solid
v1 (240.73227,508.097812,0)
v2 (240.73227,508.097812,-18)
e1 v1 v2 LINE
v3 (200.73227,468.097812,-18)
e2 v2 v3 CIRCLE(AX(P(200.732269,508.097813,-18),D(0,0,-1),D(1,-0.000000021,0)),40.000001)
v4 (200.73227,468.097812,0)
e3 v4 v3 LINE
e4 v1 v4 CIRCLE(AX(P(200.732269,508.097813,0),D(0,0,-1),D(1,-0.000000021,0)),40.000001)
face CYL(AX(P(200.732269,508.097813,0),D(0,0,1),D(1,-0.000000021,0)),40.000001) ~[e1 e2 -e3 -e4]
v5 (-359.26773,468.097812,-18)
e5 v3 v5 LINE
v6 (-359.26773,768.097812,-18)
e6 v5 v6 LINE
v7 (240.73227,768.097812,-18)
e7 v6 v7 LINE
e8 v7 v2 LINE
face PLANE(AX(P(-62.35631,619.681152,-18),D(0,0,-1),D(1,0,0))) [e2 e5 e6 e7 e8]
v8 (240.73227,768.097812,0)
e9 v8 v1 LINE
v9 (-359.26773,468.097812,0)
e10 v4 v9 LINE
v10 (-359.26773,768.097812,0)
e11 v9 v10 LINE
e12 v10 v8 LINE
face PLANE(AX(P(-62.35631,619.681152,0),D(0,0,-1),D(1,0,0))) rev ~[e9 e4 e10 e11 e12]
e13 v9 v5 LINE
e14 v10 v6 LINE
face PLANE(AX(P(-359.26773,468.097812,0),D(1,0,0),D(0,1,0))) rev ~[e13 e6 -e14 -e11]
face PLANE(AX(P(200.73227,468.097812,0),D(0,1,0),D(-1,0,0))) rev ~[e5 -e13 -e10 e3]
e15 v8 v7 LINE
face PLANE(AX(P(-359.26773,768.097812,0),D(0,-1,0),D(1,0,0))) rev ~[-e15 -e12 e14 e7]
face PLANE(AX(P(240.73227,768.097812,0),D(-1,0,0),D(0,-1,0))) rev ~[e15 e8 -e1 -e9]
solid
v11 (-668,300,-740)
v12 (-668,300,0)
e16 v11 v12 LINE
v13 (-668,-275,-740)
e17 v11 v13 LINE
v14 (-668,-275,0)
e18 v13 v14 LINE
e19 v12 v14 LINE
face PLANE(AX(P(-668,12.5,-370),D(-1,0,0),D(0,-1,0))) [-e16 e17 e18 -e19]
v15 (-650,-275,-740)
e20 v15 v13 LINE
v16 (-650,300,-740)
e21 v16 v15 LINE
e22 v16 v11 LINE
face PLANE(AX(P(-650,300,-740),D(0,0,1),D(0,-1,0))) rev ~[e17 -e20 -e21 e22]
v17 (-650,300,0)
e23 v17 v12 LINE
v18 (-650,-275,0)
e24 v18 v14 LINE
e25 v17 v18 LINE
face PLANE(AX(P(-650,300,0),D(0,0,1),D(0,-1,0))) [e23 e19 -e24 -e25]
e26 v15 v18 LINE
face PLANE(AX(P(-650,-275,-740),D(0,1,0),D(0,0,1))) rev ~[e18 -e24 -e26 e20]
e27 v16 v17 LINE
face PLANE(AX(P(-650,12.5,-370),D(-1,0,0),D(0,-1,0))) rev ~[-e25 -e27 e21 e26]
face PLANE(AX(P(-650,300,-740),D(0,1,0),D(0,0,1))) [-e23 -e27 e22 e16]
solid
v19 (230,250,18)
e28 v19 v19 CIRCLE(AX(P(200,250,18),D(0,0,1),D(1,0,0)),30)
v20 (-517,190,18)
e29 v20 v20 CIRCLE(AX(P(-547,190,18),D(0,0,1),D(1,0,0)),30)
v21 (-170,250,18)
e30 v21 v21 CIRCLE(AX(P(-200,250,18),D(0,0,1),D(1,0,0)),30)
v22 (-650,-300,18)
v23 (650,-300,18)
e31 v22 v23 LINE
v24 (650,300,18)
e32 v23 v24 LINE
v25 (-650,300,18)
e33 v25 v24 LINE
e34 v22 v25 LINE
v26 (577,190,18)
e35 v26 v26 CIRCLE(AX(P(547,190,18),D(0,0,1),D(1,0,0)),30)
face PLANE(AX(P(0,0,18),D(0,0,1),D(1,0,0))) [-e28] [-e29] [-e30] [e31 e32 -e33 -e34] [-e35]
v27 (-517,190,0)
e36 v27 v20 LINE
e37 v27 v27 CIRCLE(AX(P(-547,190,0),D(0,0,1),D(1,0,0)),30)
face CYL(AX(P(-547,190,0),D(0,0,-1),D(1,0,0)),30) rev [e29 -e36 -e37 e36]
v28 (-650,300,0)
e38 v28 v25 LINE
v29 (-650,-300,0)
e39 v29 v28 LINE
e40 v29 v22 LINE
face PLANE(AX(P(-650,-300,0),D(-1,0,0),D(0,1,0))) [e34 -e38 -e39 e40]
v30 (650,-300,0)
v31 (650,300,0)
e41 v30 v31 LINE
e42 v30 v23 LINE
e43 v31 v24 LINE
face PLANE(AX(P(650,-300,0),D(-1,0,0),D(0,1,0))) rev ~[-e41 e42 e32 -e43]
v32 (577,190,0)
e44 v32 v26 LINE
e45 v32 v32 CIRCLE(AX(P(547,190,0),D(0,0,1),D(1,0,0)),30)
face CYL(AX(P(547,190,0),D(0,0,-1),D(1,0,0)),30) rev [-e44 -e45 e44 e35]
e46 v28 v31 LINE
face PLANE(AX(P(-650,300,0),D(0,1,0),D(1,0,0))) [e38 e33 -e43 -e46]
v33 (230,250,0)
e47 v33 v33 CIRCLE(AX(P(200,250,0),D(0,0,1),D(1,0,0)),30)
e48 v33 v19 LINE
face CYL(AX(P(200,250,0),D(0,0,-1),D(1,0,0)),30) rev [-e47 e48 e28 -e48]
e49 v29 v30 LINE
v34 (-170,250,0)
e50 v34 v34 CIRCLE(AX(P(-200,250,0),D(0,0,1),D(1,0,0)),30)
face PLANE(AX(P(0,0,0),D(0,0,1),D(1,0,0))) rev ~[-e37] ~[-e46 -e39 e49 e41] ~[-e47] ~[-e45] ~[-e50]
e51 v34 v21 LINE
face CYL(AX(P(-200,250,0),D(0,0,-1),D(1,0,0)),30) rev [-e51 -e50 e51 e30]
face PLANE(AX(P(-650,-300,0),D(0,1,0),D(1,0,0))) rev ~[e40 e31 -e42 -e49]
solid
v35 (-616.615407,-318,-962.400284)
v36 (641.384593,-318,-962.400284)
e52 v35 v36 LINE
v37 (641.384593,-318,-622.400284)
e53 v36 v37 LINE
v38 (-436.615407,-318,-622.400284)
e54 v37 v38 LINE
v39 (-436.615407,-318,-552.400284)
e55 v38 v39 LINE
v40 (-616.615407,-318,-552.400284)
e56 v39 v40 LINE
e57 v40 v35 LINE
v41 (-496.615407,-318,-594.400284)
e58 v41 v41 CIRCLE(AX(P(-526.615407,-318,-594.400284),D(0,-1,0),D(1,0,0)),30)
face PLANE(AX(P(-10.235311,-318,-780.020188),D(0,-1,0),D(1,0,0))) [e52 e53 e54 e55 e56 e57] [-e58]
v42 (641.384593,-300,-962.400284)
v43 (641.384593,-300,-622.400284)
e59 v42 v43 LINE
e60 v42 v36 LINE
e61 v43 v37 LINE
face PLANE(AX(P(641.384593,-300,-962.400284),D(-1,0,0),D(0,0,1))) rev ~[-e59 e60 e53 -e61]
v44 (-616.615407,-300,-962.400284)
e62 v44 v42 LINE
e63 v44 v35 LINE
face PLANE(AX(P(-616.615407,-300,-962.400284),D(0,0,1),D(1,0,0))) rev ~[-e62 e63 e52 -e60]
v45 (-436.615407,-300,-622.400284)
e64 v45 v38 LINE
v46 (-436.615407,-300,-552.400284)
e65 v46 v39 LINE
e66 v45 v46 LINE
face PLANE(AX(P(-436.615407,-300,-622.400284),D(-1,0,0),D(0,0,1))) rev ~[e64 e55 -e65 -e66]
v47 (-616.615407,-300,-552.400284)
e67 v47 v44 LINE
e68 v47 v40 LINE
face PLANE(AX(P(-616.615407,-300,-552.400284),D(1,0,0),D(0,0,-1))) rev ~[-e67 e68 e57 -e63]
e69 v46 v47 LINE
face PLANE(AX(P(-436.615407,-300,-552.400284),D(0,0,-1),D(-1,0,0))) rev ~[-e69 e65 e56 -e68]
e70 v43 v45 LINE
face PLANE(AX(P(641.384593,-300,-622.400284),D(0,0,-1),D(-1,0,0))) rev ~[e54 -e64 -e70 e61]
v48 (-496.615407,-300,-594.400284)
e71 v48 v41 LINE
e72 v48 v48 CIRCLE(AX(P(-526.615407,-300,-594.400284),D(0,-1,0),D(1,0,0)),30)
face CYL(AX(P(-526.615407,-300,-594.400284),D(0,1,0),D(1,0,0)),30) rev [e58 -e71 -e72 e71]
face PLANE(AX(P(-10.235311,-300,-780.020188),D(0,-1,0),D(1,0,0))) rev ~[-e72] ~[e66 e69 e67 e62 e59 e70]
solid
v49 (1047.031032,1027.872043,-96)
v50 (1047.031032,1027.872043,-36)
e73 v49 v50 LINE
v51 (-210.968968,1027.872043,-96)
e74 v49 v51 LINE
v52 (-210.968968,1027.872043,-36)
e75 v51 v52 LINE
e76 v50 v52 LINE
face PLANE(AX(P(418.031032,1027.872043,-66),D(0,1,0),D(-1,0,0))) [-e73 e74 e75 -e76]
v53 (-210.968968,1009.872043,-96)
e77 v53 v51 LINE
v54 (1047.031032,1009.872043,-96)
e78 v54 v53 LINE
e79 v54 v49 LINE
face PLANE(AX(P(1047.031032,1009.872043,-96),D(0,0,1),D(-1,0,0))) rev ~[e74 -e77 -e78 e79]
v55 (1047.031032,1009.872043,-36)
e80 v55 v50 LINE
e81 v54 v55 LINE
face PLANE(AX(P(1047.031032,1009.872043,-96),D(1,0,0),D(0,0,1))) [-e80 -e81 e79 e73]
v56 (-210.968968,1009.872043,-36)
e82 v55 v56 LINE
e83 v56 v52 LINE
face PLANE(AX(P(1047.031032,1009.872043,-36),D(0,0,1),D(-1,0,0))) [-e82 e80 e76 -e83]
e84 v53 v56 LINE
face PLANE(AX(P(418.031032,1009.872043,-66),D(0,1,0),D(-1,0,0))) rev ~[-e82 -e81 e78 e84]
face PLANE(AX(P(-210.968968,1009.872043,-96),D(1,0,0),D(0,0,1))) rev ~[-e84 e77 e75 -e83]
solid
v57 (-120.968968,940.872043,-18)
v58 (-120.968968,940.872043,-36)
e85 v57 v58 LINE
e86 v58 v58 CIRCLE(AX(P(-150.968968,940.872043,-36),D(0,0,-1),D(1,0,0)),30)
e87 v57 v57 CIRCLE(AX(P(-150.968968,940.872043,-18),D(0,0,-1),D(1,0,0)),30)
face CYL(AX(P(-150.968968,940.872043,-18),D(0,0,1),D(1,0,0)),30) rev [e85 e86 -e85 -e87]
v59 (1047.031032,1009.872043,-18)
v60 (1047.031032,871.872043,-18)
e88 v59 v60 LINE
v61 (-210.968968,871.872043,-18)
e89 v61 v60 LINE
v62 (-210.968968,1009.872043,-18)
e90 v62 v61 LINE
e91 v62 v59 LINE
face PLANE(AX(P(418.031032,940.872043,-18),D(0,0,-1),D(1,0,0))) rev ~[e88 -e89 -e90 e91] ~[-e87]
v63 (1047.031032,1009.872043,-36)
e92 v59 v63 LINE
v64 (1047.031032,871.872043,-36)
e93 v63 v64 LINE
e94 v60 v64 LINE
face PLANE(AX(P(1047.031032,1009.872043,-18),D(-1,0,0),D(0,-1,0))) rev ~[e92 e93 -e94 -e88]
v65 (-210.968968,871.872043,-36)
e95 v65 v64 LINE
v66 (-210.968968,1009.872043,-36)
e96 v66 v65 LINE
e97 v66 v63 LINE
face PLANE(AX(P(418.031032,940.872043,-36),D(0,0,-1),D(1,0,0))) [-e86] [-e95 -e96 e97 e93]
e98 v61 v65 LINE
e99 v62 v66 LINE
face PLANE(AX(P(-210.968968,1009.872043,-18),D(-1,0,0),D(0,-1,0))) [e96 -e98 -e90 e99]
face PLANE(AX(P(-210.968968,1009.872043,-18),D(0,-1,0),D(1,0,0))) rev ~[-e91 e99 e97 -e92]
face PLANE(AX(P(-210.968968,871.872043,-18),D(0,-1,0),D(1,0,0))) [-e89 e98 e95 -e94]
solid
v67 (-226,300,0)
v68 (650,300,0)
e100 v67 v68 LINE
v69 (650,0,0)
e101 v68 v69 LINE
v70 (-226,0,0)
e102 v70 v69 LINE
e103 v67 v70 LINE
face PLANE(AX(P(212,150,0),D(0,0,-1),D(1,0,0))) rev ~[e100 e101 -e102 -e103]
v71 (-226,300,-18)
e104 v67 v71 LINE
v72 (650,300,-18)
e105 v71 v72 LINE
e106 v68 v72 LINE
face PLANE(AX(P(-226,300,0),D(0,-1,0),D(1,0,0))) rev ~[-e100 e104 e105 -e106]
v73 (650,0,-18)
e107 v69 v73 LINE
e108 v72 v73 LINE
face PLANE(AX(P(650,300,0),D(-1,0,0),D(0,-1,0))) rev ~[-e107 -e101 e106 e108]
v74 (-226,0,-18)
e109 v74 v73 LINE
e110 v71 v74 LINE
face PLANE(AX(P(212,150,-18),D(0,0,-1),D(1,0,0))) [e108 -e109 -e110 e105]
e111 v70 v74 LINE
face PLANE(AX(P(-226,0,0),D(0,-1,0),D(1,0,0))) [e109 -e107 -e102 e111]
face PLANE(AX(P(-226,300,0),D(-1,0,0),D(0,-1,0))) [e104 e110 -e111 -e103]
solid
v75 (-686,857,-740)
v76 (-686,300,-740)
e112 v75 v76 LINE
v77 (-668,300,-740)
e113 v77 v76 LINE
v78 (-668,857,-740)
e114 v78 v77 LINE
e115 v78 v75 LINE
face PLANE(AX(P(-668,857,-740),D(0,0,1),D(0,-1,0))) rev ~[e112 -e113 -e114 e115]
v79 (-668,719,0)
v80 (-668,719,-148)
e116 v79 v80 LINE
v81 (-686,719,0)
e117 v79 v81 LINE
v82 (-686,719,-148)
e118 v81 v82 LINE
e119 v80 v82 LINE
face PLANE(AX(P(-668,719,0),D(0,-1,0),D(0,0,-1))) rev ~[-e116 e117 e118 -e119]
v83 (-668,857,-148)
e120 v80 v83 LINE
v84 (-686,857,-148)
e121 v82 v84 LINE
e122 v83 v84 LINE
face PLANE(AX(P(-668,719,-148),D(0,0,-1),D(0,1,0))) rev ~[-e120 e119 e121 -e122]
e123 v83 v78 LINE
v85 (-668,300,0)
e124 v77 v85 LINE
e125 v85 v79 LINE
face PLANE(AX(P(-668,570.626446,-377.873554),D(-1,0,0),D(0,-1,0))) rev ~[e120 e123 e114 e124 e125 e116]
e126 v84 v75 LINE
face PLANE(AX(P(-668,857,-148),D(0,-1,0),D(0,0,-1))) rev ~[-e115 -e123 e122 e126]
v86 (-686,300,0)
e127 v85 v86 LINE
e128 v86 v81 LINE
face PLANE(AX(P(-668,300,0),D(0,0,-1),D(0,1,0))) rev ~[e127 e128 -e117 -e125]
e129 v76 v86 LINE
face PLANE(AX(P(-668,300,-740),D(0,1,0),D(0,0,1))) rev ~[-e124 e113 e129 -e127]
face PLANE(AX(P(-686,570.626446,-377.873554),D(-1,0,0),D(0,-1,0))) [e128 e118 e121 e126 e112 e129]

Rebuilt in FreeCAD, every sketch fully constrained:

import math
import FreeCAD as App
import Part
import Sketcher
Q = App.Units.Quantity


def add_polygon(sketch, points):
    """Adds a closed chain of lines whose ends are joined by coincident constraints."""
    first, n = sketch.GeometryCount, len(points)
    for a, b in zip(points, points[1:] + points[:1]):
        sketch.addGeometry(Part.LineSegment(App.Vector(*a, 0), App.Vector(*b, 0)), False)
    for i in range(n):
        sketch.addConstraint(Sketcher.Constraint("Coincident", first + i, 2, first + (i + 1) % n, 1))

doc = App.newDocument("Part")
body = doc.addObject("PartDesign::Body", "Body")

# Sketch on XY plane
sketch1 = body.newObject("Sketcher::SketchObject", "Sketch")
sketch1.AttachmentSupport = (doc.getObject("XY_Plane"), [""])
sketch1.MapMode = "FlatFace"
add_polygon(sketch1, [(-650, 300), (-650, -300), (650, -300), (650, 300)])  # lines 0-3
sketch1.addGeometry(Part.Circle(App.Vector(-547, 190, 0), App.Vector(0, 0, 1), 30), False)  # 4
sketch1.addGeometry(Part.Circle(App.Vector(547, 190, 0), App.Vector(0, 0, 1), 30), False)  # 5
sketch1.addGeometry(Part.Circle(App.Vector(-200, 250, 0), App.Vector(0, 0, 1), 30), False)  # 6
sketch1.addGeometry(Part.Circle(App.Vector(200, 250, 0), App.Vector(0, 0, 1), 30), False)  # 7
sketch1.addConstraint([
    Sketcher.Constraint("Vertical", 0),
    Sketcher.Constraint("Horizontal", 1),
    Sketcher.Constraint("Vertical", 2),
    Sketcher.Constraint("Horizontal", 3),
    Sketcher.Constraint("Equal", 4, 5),
    Sketcher.Constraint("Equal", 5, 6),
    Sketcher.Constraint("Equal", 6, 7),
    Sketcher.Constraint("Symmetric", 0, 2, 2, 2, -1, 1),
    Sketcher.Constraint("Symmetric", 4, 3, 5, 3, -2),
    Sketcher.Constraint("Symmetric", 6, 3, 7, 3, -2),
    Sketcher.Constraint("Diameter", 4, Q("60 mm")),
    Sketcher.Constraint("DistanceX", 1, 1, 1, 2, Q("1300 mm")),
    Sketcher.Constraint("DistanceY", 0, 2, 0, 1, Q("600 mm")),
    Sketcher.Constraint("DistanceX", 4, 3, -1, 1, Q("547 mm")),
    Sketcher.Constraint("DistanceY", -1, 1, 4, 3, Q("190 mm")),
    Sketcher.Constraint("DistanceX", 6, 3, -1, 1, Q("200 mm")),
    Sketcher.Constraint("DistanceY", -1, 1, 6, 3, Q("250 mm")),
])
pad1 = body.newObject("PartDesign::Pad", "Pad")
pad1.Profile = sketch1
pad1.Length = 18
body2 = doc.addObject("PartDesign::Body", "Body001")

# Sketch on YZ plane
sketch2 = body2.newObject("Sketcher::SketchObject", "Sketch001")
sketch2.AttachmentSupport = (doc.getObject("YZ_Plane001"), [""])
sketch2.MapMode = "FlatFace"
sketch2.AttachmentOffset = App.Placement(App.Vector(0, 0, -650), App.Rotation())
add_polygon(sketch2, [(300, 0), (300, -740), (-275, -740), (-275, 0)])  # lines 0-3
sketch2.addConstraint([
    Sketcher.Constraint("Vertical", 0),
    Sketcher.Constraint("Horizontal", 1),
    Sketcher.Constraint("Vertical", 2),
    Sketcher.Constraint("Horizontal", 3),
    Sketcher.Constraint("PointOnObject", 2, 2, -1),
    Sketcher.Constraint("DistanceX", 1, 2, 1, 1, Q("575 mm")),
    Sketcher.Constraint("DistanceY", 0, 2, 0, 1, Q("740 mm")),
    Sketcher.Constraint("DistanceX", -1, 1, 0, 2, Q("300 mm")),
])
pad2 = body2.newObject("PartDesign::Pad", "Pad001")
pad2.Profile = sketch2
pad2.Length = 18
pad2.Reversed = True
body3 = doc.addObject("PartDesign::Body", "Body002")

# Sketch on YZ plane
sketch3 = body3.newObject("Sketcher::SketchObject", "Sketch002")
sketch3.AttachmentSupport = (doc.getObject("YZ_Plane002"), [""])
sketch3.MapMode = "FlatFace"
sketch3.AttachmentOffset = App.Placement(App.Vector(0, 0, -668), App.Rotation())
add_polygon(sketch3, [(857, -740), (300, -740), (300, 0), (719, 0), (719, -148), (857, -148)])  # lines 0-5
sketch3.addConstraint([
    Sketcher.Constraint("Horizontal", 0),
    Sketcher.Constraint("Vertical", 1),
    Sketcher.Constraint("Horizontal", 2),
    Sketcher.Constraint("Vertical", 3),
    Sketcher.Constraint("Horizontal", 4),
    Sketcher.Constraint("Vertical", 5),
    Sketcher.Constraint("PointOnObject", 1, 2, -1),
    Sketcher.Constraint("DistanceX", 0, 2, 0, 1, Q("557 mm")),
    Sketcher.Constraint("DistanceX", 2, 1, 2, 2, Q("419 mm")),
    Sketcher.Constraint("DistanceY", 1, 1, 1, 2, Q("740 mm")),
    Sketcher.Constraint("DistanceY", 3, 2, 3, 1, Q("148 mm")),
    Sketcher.Constraint("DistanceX", -1, 1, 0, 2, Q("300 mm")),
])
pad3 = body3.newObject("PartDesign::Pad", "Pad002")
pad3.Profile = sketch3
pad3.Length = 18
pad3.Reversed = True
body4 = doc.addObject("PartDesign::Body", "Body003")

# Sketch on XY plane
sketch4 = body4.newObject("Sketcher::SketchObject", "Sketch003")
sketch4.AttachmentSupport = (doc.getObject("XY_Plane003"), [""])
sketch4.MapMode = "FlatFace"
sketch4.addGeometry([
    Part.LineSegment(App.Vector(201, 468, 0), App.Vector(-359, 468, 0)),  # 0
    Part.LineSegment(App.Vector(-359, 468, 0), App.Vector(-359, 768, 0)),  # 1
    Part.LineSegment(App.Vector(-359, 768, 0), App.Vector(241, 768, 0)),  # 2
    Part.LineSegment(App.Vector(241, 768, 0), App.Vector(241, 508, 0)),  # 3
    Part.ArcOfCircle(Part.Circle(App.Vector(201, 508, 0), App.Vector(0, 0, 1), 40), math.radians(-90), math.radians(0)),  # 4
], False)
sketch4.addConstraint([
    Sketcher.Constraint("Coincident", 0, 2, 1, 1),
    Sketcher.Constraint("Coincident", 1, 2, 2, 1),
    Sketcher.Constraint("Coincident", 2, 2, 3, 1),
    Sketcher.Constraint("Tangent", 3, 2, 4, 2),
    Sketcher.Constraint("Tangent", 4, 1, 0, 1),
    Sketcher.Constraint("Horizontal", 0),
    Sketcher.Constraint("Vertical", 1),
    Sketcher.Constraint("Horizontal", 2),
    Sketcher.Constraint("Vertical", 3),
    Sketcher.Constraint("Radius", 4, Q("40.000001 mm")),
    Sketcher.Constraint("DistanceX", 0, 2, 0, 1, Q("560 mm")),
    Sketcher.Constraint("DistanceY", 1, 1, 1, 2, Q("300 mm")),
    Sketcher.Constraint("DistanceX", -1, 1, 4, 3, Q("200.732269 mm")),
    Sketcher.Constraint("DistanceY", -1, 1, 0, 2, Q("468.097812 mm")),
])
pad4 = body4.newObject("PartDesign::Pad", "Pad003")
pad4.Profile = sketch4
pad4.Length = 18
pad4.Reversed = True
body5 = doc.addObject("PartDesign::Body", "Body004")

# Sketch on XZ plane
sketch5 = body5.newObject("Sketcher::SketchObject", "Sketch004")
sketch5.AttachmentSupport = (doc.getObject("XZ_Plane004"), [""])
sketch5.MapMode = "FlatFace"
sketch5.AttachmentOffset = App.Placement(App.Vector(0, 0, 300), App.Rotation())
add_polygon(sketch5, [(641, -622), (-437, -622), (-437, -552), (-617, -552), (-617, -962), (641, -962)])  # lines 0-5
sketch5.addGeometry(Part.Circle(App.Vector(-527, -594, 0), App.Vector(0, 0, 1), 30), False)  # 6
sketch5.addConstraint([
    Sketcher.Constraint("Horizontal", 0),
    Sketcher.Constraint("Vertical", 1),
    Sketcher.Constraint("Horizontal", 2),
    Sketcher.Constraint("Vertical", 3),
    Sketcher.Constraint("Horizontal", 4),
    Sketcher.Constraint("Vertical", 5),
    Sketcher.Constraint("Diameter", 6, Q("60 mm")),
    Sketcher.Constraint("DistanceX", 0, 2, 0, 1, Q("1078 mm")),
    Sketcher.Constraint("DistanceX", 2, 2, 2, 1, Q("180 mm")),
    Sketcher.Constraint("DistanceY", 1, 1, 1, 2, Q("70 mm")),
    Sketcher.Constraint("DistanceY", 3, 2, 3, 1, Q("410 mm")),
    Sketcher.Constraint("DistanceX", 6, 3, 0, 2, Q("90 mm")),
    Sketcher.Constraint("DistanceY", 0, 2, 6, 3, Q("28 mm")),
    Sketcher.Constraint("DistanceX", 6, 3, -1, 1, Q("526.615407 mm")),
    Sketcher.Constraint("DistanceY", 6, 3, -1, 1, Q("594.400284 mm")),
])
pad5 = body5.newObject("PartDesign::Pad", "Pad004")
pad5.Profile = sketch5
pad5.Length = 18
body6 = doc.addObject("PartDesign::Body", "Body005")

# Sketch on XY plane
sketch6 = body6.newObject("Sketcher::SketchObject", "Sketch005")
sketch6.AttachmentSupport = (doc.getObject("XY_Plane005"), [""])
sketch6.MapMode = "FlatFace"
add_polygon(sketch6, [(-226, 0), (-226, 300), (650, 300), (650, 0)])  # lines 0-3
sketch6.addConstraint([
    Sketcher.Constraint("Vertical", 0),
    Sketcher.Constraint("Horizontal", 1),
    Sketcher.Constraint("Vertical", 2),
    Sketcher.Constraint("Horizontal", 3),
    Sketcher.Constraint("PointOnObject", 2, 2, -1),
    Sketcher.Constraint("DistanceX", 1, 1, 1, 2, Q("876 mm")),
    Sketcher.Constraint("DistanceY", 0, 1, 0, 2, Q("300 mm")),
    Sketcher.Constraint("DistanceX", 0, 2, -1, 1, Q("226 mm")),
])
pad6 = body6.newObject("PartDesign::Pad", "Pad005")
pad6.Profile = sketch6
pad6.Length = 18
pad6.Reversed = True
body7 = doc.addObject("PartDesign::Body", "Body006")

# Sketch on XY plane
sketch7 = body7.newObject("Sketcher::SketchObject", "Sketch006")
sketch7.AttachmentSupport = (doc.getObject("XY_Plane006"), [""])
sketch7.MapMode = "FlatFace"
sketch7.AttachmentOffset = App.Placement(App.Vector(0, 0, -18), App.Rotation())
add_polygon(sketch7, [(-211, 872), (-211, 1010), (1047, 1010), (1047, 872)])  # lines 0-3
sketch7.addGeometry(Part.Circle(App.Vector(-151, 941, 0), App.Vector(0, 0, 1), 30), False)  # 4
sketch7.addConstraint([
    Sketcher.Constraint("Vertical", 0),
    Sketcher.Constraint("Horizontal", 1),
    Sketcher.Constraint("Vertical", 2),
    Sketcher.Constraint("Horizontal", 3),
    Sketcher.Constraint("Diameter", 4, Q("60 mm")),
    Sketcher.Constraint("DistanceX", 1, 1, 1, 2, Q("1258 mm")),
    Sketcher.Constraint("DistanceY", 0, 1, 0, 2, Q("138 mm")),
    Sketcher.Constraint("DistanceX", 0, 2, 4, 3, Q("60 mm")),
    Sketcher.Constraint("DistanceY", 4, 3, 0, 2, Q("69 mm")),
    Sketcher.Constraint("DistanceX", -1, 1, 1, 2, Q("1047.031032 mm")),
    Sketcher.Constraint("DistanceY", -1, 1, 4, 3, Q("940.872043 mm")),
])
pad7 = body7.newObject("PartDesign::Pad", "Pad006")
pad7.Profile = sketch7
pad7.Length = 18
pad7.Reversed = True
body8 = doc.addObject("PartDesign::Body", "Body007")

# Sketch on XZ plane
sketch8 = body8.newObject("Sketcher::SketchObject", "Sketch007")
sketch8.AttachmentSupport = (doc.getObject("XZ_Plane007"), [""])
sketch8.MapMode = "FlatFace"
sketch8.AttachmentOffset = App.Placement(App.Vector(0, 0, -1009.872043), App.Rotation())
add_polygon(sketch8, [(1047, -36), (1047, -96), (-211, -96), (-211, -36)])  # lines 0-3
sketch8.addConstraint([
    Sketcher.Constraint("Vertical", 0),
    Sketcher.Constraint("Horizontal", 1),
    Sketcher.Constraint("Vertical", 2),
    Sketcher.Constraint("Horizontal", 3),
    Sketcher.Constraint("DistanceX", 1, 2, 1, 1, Q("1258 mm")),
    Sketcher.Constraint("DistanceY", 0, 2, 0, 1, Q("60 mm")),
    Sketcher.Constraint("DistanceY", 0, 2, -1, 1, Q("96 mm")),
    Sketcher.Constraint("DistanceX", -1, 1, 0, 2, Q("1047.031032 mm")),
])
pad8 = body8.newObject("PartDesign::Pad", "Pad007")
pad8.Profile = sketch8
pad8.Length = 18
pad8.Reversed = True

doc.recompute()
